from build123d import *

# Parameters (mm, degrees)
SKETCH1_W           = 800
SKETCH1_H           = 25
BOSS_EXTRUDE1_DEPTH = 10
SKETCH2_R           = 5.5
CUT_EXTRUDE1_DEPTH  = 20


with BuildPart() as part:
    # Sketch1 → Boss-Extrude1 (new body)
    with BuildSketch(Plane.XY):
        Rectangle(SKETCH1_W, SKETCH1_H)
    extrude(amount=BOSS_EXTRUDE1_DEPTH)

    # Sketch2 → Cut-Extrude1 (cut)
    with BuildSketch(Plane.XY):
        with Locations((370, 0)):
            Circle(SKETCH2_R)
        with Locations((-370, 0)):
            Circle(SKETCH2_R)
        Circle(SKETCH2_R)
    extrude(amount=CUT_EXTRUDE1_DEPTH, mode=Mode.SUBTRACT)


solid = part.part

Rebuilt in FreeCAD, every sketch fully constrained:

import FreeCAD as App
import Part
import Sketcher
Q = App.Units.Quantity

doc = App.newDocument("Part")
params = doc.addObject("Spreadsheet::Sheet", "Params")
for row, (alias, value) in enumerate([
    ("sketch1_width", "800 mm"),
    ("sketch1_height", "25 mm"),
    ("pad1_length", "10 mm"),
    ("sketch2_diameter", "11 mm"),
    ("pocket1_length", "20 mm"),
], start=1):
    params.set(f"A{row}", alias)
    params.set(f"B{row}", "=" + value)
    params.setAlias(f"B{row}", alias)

body = doc.addObject("PartDesign::Body", "Body")

# Sketch on XY plane
sketch1 = body.newObject("Sketcher::SketchObject", "Sketch")
sketch1.AttachmentSupport = (doc.getObject("XY_Plane"), [""])
sketch1.MapMode = "FlatFace"
sketch1.addGeometry([
    Part.LineSegment(App.Vector(-400, 12.5, 0), App.Vector(-400, -12.5, 0)),
    Part.LineSegment(App.Vector(-400, -12.5, 0), App.Vector(400, -12.5, 0)),
    Part.LineSegment(App.Vector(400, -12.5, 0), App.Vector(400, 12.5, 0)),
    Part.LineSegment(App.Vector(400, 12.5, 0), App.Vector(-400, 12.5, 0)),
], False)
sketch1.addConstraint([
    Sketcher.Constraint("Coincident", 0, 2, 1, 1),
    Sketcher.Constraint("Coincident", 1, 2, 2, 1),
    Sketcher.Constraint("Coincident", 2, 2, 3, 1),
    Sketcher.Constraint("Coincident", 3, 2, 0, 1),
    Sketcher.Constraint("Vertical", 0),
    Sketcher.Constraint("Horizontal", 1),
    Sketcher.Constraint("Vertical", 2),
    Sketcher.Constraint("Horizontal", 3),
    Sketcher.Constraint("Symmetric", 0, 2, 2, 2, -1, 1),
    Sketcher.Constraint("DistanceX", 1, 1, 1, 2, Q("800 mm")),
    Sketcher.Constraint("DistanceY", 0, 2, 0, 1, Q("25 mm")),
])
sketch1.setExpression("Constraints[9]", "Params.sketch1_width")
sketch1.setExpression("Constraints[10]", "Params.sketch1_height")
pad1 = body.newObject("PartDesign::Pad", "Pad")
pad1.Profile = sketch1
pad1.setExpression("Length", "Params.pad1_length")

# Sketch on XY plane
sketch2 = body.newObject("Sketcher::SketchObject", "Sketch001")
sketch2.AttachmentSupport = (doc.getObject("XY_Plane"), [""])
sketch2.MapMode = "FlatFace"
sketch2.addGeometry([
    Part.Circle(App.Vector(370, 0, 0), App.Vector(0, 0, 1), 5.5),
    Part.Circle(App.Vector(-370, 0, 0), App.Vector(0, 0, 1), 5.5),
    Part.Circle(App.Vector(0, 0, 0), App.Vector(0, 0, 1), 5.5),
], False)
sketch2.addConstraint([
    Sketcher.Constraint("Coincident", 2, 3, -1, 1),
    Sketcher.Constraint("Equal", 0, 1),
    Sketcher.Constraint("Equal", 1, 2),
    Sketcher.Constraint("Symmetric", 0, 3, 1, 3, -1, 1),
    Sketcher.Constraint("PointOnObject", 0, 3, -1),
    Sketcher.Constraint("Diameter", 0, Q("11 mm")),
    Sketcher.Constraint("DistanceX", -1, 1, 0, 3, Q("370 mm")),
])
sketch2.setExpression("Constraints[5]", "Params.sketch2_diameter")
pocket1 = body.newObject("PartDesign::Pocket", "Pocket")
pocket1.Profile = sketch2
pocket1.setExpression("Length", "Params.pocket1_length")
pocket1.Reversed = True

doc.recompute()
